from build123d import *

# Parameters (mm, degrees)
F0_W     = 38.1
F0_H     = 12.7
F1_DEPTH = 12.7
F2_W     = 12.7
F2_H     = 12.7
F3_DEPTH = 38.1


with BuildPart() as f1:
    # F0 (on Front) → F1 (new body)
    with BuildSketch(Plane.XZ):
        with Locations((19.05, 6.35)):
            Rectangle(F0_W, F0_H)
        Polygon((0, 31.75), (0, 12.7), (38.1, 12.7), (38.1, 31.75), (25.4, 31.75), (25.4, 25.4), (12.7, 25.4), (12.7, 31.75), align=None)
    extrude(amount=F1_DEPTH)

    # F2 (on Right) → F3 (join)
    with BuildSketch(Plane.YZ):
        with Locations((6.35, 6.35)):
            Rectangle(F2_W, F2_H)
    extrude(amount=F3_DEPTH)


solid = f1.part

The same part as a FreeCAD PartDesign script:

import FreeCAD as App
import Part
import Sketcher

V = App.Vector
Q = App.Units.Quantity

doc = App.newDocument("Part")
body = doc.addObject("PartDesign::Body", "Body")

sketch1 = doc.addObject("Sketcher::SketchObject", "Sketch")
body.addObject(sketch1)
sketch1.AttachmentSupport = (doc.XZ_Plane, [""])
sketch1.MapMode = "FlatFace"
sketch1.addGeometry([
    Part.LineSegment(V(0, 0, 0), V(38.1, 0, 0)),
    Part.LineSegment(V(38.1, 0, 0), V(38.1, 31.75, 0)),
    Part.LineSegment(V(38.1, 31.75, 0), V(25.4, 31.75, 0)),
    Part.LineSegment(V(25.4, 31.75, 0), V(25.4, 25.4, 0)),
    Part.LineSegment(V(25.4, 25.4, 0), V(12.7, 25.4, 0)),
    Part.LineSegment(V(12.7, 25.4, 0), V(12.7, 31.75, 0)),
    Part.LineSegment(V(12.7, 31.75, 0), V(0, 31.75, 0)),
    Part.LineSegment(V(0, 31.75, 0), V(0, 0, 0)),
], False)
sketch1.addConstraint([
    Sketcher.Constraint("Coincident", 0, 2, 1, 1),
    Sketcher.Constraint("Coincident", 1, 2, 2, 1),
    Sketcher.Constraint("Coincident", 2, 2, 3, 1),
    Sketcher.Constraint("Coincident", 3, 2, 4, 1),
    Sketcher.Constraint("Coincident", 4, 2, 5, 1),
    Sketcher.Constraint("Coincident", 5, 2, 6, 1),
    Sketcher.Constraint("Coincident", 6, 2, 7, 1),
    Sketcher.Constraint("Coincident", 7, 2, 0, 1),
    Sketcher.Constraint("Horizontal", 0),
    Sketcher.Constraint("Vertical", 1),
    Sketcher.Constraint("Horizontal", 2),
    Sketcher.Constraint("Vertical", 3),
    Sketcher.Constraint("Horizontal", 4),
    Sketcher.Constraint("Vertical", 5),
    Sketcher.Constraint("Horizontal", 6),
    Sketcher.Constraint("Vertical", 7),
    Sketcher.Constraint("Coincident", 7, 2, -1, 1),
    Sketcher.Constraint("Horizontal", 2, 2, 5, 2),
    Sketcher.Constraint("Equal", 2, 4),
    Sketcher.Constraint("Equal", 4, 6),
    Sketcher.Constraint("DistanceX", 0, 1, 0, 2, Q("1.5 in")),
    Sketcher.Constraint("DistanceY", -1, 1, 3, 2, Q("1 in")),
    Sketcher.Constraint("DistanceY", 1, 1, 1, 2, Q("1.25 in")),
])
pad1 = doc.addObject("PartDesign::Pad", "Pad")
body.addObject(pad1)
pad1.Profile = sketch1
pad1.Length = Q("0.5 in")

sketch2 = doc.addObject("Sketcher::SketchObject", "Sketch001")
body.addObject(sketch2)
sketch2.AttachmentSupport = (doc.YZ_Plane, [""])
sketch2.MapMode = "FlatFace"
sketch2.addGeometry([
    Part.LineSegment(V(0, 12.7, 0), V(0, 0, 0)),
    Part.LineSegment(V(0, 0, 0), V(12.7, 0, 0)),
    Part.LineSegment(V(12.7, 0, 0), V(12.7, 12.7, 0)),
    Part.LineSegment(V(12.7, 12.7, 0), V(0, 12.7, 0)),
], False)
sketch2.addConstraint([
    Sketcher.Constraint("Coincident", 0, 2, 1, 1),
    Sketcher.Constraint("Coincident", 1, 2, 2, 1),
    Sketcher.Constraint("Coincident", 2, 2, 3, 1),
    Sketcher.Constraint("Coincident", 3, 2, 0, 1),
    Sketcher.Constraint("Vertical", 0),
    Sketcher.Constraint("Horizontal", 1),
    Sketcher.Constraint("Vertical", 2),
    Sketcher.Constraint("Horizontal", 3),
    Sketcher.Constraint("Coincident", 0, 2, -1, 1),
    Sketcher.Constraint("Equal", 3, 0),
    Sketcher.Constraint("DistanceX", 1, 1, 1, 2, Q("0.5 in")),
])
pad2 = doc.addObject("PartDesign::Pad", "Pad001")
body.addObject(pad2)
pad2.Profile = sketch2
pad2.Length = Q("1.5 in")

doc.recompute()
